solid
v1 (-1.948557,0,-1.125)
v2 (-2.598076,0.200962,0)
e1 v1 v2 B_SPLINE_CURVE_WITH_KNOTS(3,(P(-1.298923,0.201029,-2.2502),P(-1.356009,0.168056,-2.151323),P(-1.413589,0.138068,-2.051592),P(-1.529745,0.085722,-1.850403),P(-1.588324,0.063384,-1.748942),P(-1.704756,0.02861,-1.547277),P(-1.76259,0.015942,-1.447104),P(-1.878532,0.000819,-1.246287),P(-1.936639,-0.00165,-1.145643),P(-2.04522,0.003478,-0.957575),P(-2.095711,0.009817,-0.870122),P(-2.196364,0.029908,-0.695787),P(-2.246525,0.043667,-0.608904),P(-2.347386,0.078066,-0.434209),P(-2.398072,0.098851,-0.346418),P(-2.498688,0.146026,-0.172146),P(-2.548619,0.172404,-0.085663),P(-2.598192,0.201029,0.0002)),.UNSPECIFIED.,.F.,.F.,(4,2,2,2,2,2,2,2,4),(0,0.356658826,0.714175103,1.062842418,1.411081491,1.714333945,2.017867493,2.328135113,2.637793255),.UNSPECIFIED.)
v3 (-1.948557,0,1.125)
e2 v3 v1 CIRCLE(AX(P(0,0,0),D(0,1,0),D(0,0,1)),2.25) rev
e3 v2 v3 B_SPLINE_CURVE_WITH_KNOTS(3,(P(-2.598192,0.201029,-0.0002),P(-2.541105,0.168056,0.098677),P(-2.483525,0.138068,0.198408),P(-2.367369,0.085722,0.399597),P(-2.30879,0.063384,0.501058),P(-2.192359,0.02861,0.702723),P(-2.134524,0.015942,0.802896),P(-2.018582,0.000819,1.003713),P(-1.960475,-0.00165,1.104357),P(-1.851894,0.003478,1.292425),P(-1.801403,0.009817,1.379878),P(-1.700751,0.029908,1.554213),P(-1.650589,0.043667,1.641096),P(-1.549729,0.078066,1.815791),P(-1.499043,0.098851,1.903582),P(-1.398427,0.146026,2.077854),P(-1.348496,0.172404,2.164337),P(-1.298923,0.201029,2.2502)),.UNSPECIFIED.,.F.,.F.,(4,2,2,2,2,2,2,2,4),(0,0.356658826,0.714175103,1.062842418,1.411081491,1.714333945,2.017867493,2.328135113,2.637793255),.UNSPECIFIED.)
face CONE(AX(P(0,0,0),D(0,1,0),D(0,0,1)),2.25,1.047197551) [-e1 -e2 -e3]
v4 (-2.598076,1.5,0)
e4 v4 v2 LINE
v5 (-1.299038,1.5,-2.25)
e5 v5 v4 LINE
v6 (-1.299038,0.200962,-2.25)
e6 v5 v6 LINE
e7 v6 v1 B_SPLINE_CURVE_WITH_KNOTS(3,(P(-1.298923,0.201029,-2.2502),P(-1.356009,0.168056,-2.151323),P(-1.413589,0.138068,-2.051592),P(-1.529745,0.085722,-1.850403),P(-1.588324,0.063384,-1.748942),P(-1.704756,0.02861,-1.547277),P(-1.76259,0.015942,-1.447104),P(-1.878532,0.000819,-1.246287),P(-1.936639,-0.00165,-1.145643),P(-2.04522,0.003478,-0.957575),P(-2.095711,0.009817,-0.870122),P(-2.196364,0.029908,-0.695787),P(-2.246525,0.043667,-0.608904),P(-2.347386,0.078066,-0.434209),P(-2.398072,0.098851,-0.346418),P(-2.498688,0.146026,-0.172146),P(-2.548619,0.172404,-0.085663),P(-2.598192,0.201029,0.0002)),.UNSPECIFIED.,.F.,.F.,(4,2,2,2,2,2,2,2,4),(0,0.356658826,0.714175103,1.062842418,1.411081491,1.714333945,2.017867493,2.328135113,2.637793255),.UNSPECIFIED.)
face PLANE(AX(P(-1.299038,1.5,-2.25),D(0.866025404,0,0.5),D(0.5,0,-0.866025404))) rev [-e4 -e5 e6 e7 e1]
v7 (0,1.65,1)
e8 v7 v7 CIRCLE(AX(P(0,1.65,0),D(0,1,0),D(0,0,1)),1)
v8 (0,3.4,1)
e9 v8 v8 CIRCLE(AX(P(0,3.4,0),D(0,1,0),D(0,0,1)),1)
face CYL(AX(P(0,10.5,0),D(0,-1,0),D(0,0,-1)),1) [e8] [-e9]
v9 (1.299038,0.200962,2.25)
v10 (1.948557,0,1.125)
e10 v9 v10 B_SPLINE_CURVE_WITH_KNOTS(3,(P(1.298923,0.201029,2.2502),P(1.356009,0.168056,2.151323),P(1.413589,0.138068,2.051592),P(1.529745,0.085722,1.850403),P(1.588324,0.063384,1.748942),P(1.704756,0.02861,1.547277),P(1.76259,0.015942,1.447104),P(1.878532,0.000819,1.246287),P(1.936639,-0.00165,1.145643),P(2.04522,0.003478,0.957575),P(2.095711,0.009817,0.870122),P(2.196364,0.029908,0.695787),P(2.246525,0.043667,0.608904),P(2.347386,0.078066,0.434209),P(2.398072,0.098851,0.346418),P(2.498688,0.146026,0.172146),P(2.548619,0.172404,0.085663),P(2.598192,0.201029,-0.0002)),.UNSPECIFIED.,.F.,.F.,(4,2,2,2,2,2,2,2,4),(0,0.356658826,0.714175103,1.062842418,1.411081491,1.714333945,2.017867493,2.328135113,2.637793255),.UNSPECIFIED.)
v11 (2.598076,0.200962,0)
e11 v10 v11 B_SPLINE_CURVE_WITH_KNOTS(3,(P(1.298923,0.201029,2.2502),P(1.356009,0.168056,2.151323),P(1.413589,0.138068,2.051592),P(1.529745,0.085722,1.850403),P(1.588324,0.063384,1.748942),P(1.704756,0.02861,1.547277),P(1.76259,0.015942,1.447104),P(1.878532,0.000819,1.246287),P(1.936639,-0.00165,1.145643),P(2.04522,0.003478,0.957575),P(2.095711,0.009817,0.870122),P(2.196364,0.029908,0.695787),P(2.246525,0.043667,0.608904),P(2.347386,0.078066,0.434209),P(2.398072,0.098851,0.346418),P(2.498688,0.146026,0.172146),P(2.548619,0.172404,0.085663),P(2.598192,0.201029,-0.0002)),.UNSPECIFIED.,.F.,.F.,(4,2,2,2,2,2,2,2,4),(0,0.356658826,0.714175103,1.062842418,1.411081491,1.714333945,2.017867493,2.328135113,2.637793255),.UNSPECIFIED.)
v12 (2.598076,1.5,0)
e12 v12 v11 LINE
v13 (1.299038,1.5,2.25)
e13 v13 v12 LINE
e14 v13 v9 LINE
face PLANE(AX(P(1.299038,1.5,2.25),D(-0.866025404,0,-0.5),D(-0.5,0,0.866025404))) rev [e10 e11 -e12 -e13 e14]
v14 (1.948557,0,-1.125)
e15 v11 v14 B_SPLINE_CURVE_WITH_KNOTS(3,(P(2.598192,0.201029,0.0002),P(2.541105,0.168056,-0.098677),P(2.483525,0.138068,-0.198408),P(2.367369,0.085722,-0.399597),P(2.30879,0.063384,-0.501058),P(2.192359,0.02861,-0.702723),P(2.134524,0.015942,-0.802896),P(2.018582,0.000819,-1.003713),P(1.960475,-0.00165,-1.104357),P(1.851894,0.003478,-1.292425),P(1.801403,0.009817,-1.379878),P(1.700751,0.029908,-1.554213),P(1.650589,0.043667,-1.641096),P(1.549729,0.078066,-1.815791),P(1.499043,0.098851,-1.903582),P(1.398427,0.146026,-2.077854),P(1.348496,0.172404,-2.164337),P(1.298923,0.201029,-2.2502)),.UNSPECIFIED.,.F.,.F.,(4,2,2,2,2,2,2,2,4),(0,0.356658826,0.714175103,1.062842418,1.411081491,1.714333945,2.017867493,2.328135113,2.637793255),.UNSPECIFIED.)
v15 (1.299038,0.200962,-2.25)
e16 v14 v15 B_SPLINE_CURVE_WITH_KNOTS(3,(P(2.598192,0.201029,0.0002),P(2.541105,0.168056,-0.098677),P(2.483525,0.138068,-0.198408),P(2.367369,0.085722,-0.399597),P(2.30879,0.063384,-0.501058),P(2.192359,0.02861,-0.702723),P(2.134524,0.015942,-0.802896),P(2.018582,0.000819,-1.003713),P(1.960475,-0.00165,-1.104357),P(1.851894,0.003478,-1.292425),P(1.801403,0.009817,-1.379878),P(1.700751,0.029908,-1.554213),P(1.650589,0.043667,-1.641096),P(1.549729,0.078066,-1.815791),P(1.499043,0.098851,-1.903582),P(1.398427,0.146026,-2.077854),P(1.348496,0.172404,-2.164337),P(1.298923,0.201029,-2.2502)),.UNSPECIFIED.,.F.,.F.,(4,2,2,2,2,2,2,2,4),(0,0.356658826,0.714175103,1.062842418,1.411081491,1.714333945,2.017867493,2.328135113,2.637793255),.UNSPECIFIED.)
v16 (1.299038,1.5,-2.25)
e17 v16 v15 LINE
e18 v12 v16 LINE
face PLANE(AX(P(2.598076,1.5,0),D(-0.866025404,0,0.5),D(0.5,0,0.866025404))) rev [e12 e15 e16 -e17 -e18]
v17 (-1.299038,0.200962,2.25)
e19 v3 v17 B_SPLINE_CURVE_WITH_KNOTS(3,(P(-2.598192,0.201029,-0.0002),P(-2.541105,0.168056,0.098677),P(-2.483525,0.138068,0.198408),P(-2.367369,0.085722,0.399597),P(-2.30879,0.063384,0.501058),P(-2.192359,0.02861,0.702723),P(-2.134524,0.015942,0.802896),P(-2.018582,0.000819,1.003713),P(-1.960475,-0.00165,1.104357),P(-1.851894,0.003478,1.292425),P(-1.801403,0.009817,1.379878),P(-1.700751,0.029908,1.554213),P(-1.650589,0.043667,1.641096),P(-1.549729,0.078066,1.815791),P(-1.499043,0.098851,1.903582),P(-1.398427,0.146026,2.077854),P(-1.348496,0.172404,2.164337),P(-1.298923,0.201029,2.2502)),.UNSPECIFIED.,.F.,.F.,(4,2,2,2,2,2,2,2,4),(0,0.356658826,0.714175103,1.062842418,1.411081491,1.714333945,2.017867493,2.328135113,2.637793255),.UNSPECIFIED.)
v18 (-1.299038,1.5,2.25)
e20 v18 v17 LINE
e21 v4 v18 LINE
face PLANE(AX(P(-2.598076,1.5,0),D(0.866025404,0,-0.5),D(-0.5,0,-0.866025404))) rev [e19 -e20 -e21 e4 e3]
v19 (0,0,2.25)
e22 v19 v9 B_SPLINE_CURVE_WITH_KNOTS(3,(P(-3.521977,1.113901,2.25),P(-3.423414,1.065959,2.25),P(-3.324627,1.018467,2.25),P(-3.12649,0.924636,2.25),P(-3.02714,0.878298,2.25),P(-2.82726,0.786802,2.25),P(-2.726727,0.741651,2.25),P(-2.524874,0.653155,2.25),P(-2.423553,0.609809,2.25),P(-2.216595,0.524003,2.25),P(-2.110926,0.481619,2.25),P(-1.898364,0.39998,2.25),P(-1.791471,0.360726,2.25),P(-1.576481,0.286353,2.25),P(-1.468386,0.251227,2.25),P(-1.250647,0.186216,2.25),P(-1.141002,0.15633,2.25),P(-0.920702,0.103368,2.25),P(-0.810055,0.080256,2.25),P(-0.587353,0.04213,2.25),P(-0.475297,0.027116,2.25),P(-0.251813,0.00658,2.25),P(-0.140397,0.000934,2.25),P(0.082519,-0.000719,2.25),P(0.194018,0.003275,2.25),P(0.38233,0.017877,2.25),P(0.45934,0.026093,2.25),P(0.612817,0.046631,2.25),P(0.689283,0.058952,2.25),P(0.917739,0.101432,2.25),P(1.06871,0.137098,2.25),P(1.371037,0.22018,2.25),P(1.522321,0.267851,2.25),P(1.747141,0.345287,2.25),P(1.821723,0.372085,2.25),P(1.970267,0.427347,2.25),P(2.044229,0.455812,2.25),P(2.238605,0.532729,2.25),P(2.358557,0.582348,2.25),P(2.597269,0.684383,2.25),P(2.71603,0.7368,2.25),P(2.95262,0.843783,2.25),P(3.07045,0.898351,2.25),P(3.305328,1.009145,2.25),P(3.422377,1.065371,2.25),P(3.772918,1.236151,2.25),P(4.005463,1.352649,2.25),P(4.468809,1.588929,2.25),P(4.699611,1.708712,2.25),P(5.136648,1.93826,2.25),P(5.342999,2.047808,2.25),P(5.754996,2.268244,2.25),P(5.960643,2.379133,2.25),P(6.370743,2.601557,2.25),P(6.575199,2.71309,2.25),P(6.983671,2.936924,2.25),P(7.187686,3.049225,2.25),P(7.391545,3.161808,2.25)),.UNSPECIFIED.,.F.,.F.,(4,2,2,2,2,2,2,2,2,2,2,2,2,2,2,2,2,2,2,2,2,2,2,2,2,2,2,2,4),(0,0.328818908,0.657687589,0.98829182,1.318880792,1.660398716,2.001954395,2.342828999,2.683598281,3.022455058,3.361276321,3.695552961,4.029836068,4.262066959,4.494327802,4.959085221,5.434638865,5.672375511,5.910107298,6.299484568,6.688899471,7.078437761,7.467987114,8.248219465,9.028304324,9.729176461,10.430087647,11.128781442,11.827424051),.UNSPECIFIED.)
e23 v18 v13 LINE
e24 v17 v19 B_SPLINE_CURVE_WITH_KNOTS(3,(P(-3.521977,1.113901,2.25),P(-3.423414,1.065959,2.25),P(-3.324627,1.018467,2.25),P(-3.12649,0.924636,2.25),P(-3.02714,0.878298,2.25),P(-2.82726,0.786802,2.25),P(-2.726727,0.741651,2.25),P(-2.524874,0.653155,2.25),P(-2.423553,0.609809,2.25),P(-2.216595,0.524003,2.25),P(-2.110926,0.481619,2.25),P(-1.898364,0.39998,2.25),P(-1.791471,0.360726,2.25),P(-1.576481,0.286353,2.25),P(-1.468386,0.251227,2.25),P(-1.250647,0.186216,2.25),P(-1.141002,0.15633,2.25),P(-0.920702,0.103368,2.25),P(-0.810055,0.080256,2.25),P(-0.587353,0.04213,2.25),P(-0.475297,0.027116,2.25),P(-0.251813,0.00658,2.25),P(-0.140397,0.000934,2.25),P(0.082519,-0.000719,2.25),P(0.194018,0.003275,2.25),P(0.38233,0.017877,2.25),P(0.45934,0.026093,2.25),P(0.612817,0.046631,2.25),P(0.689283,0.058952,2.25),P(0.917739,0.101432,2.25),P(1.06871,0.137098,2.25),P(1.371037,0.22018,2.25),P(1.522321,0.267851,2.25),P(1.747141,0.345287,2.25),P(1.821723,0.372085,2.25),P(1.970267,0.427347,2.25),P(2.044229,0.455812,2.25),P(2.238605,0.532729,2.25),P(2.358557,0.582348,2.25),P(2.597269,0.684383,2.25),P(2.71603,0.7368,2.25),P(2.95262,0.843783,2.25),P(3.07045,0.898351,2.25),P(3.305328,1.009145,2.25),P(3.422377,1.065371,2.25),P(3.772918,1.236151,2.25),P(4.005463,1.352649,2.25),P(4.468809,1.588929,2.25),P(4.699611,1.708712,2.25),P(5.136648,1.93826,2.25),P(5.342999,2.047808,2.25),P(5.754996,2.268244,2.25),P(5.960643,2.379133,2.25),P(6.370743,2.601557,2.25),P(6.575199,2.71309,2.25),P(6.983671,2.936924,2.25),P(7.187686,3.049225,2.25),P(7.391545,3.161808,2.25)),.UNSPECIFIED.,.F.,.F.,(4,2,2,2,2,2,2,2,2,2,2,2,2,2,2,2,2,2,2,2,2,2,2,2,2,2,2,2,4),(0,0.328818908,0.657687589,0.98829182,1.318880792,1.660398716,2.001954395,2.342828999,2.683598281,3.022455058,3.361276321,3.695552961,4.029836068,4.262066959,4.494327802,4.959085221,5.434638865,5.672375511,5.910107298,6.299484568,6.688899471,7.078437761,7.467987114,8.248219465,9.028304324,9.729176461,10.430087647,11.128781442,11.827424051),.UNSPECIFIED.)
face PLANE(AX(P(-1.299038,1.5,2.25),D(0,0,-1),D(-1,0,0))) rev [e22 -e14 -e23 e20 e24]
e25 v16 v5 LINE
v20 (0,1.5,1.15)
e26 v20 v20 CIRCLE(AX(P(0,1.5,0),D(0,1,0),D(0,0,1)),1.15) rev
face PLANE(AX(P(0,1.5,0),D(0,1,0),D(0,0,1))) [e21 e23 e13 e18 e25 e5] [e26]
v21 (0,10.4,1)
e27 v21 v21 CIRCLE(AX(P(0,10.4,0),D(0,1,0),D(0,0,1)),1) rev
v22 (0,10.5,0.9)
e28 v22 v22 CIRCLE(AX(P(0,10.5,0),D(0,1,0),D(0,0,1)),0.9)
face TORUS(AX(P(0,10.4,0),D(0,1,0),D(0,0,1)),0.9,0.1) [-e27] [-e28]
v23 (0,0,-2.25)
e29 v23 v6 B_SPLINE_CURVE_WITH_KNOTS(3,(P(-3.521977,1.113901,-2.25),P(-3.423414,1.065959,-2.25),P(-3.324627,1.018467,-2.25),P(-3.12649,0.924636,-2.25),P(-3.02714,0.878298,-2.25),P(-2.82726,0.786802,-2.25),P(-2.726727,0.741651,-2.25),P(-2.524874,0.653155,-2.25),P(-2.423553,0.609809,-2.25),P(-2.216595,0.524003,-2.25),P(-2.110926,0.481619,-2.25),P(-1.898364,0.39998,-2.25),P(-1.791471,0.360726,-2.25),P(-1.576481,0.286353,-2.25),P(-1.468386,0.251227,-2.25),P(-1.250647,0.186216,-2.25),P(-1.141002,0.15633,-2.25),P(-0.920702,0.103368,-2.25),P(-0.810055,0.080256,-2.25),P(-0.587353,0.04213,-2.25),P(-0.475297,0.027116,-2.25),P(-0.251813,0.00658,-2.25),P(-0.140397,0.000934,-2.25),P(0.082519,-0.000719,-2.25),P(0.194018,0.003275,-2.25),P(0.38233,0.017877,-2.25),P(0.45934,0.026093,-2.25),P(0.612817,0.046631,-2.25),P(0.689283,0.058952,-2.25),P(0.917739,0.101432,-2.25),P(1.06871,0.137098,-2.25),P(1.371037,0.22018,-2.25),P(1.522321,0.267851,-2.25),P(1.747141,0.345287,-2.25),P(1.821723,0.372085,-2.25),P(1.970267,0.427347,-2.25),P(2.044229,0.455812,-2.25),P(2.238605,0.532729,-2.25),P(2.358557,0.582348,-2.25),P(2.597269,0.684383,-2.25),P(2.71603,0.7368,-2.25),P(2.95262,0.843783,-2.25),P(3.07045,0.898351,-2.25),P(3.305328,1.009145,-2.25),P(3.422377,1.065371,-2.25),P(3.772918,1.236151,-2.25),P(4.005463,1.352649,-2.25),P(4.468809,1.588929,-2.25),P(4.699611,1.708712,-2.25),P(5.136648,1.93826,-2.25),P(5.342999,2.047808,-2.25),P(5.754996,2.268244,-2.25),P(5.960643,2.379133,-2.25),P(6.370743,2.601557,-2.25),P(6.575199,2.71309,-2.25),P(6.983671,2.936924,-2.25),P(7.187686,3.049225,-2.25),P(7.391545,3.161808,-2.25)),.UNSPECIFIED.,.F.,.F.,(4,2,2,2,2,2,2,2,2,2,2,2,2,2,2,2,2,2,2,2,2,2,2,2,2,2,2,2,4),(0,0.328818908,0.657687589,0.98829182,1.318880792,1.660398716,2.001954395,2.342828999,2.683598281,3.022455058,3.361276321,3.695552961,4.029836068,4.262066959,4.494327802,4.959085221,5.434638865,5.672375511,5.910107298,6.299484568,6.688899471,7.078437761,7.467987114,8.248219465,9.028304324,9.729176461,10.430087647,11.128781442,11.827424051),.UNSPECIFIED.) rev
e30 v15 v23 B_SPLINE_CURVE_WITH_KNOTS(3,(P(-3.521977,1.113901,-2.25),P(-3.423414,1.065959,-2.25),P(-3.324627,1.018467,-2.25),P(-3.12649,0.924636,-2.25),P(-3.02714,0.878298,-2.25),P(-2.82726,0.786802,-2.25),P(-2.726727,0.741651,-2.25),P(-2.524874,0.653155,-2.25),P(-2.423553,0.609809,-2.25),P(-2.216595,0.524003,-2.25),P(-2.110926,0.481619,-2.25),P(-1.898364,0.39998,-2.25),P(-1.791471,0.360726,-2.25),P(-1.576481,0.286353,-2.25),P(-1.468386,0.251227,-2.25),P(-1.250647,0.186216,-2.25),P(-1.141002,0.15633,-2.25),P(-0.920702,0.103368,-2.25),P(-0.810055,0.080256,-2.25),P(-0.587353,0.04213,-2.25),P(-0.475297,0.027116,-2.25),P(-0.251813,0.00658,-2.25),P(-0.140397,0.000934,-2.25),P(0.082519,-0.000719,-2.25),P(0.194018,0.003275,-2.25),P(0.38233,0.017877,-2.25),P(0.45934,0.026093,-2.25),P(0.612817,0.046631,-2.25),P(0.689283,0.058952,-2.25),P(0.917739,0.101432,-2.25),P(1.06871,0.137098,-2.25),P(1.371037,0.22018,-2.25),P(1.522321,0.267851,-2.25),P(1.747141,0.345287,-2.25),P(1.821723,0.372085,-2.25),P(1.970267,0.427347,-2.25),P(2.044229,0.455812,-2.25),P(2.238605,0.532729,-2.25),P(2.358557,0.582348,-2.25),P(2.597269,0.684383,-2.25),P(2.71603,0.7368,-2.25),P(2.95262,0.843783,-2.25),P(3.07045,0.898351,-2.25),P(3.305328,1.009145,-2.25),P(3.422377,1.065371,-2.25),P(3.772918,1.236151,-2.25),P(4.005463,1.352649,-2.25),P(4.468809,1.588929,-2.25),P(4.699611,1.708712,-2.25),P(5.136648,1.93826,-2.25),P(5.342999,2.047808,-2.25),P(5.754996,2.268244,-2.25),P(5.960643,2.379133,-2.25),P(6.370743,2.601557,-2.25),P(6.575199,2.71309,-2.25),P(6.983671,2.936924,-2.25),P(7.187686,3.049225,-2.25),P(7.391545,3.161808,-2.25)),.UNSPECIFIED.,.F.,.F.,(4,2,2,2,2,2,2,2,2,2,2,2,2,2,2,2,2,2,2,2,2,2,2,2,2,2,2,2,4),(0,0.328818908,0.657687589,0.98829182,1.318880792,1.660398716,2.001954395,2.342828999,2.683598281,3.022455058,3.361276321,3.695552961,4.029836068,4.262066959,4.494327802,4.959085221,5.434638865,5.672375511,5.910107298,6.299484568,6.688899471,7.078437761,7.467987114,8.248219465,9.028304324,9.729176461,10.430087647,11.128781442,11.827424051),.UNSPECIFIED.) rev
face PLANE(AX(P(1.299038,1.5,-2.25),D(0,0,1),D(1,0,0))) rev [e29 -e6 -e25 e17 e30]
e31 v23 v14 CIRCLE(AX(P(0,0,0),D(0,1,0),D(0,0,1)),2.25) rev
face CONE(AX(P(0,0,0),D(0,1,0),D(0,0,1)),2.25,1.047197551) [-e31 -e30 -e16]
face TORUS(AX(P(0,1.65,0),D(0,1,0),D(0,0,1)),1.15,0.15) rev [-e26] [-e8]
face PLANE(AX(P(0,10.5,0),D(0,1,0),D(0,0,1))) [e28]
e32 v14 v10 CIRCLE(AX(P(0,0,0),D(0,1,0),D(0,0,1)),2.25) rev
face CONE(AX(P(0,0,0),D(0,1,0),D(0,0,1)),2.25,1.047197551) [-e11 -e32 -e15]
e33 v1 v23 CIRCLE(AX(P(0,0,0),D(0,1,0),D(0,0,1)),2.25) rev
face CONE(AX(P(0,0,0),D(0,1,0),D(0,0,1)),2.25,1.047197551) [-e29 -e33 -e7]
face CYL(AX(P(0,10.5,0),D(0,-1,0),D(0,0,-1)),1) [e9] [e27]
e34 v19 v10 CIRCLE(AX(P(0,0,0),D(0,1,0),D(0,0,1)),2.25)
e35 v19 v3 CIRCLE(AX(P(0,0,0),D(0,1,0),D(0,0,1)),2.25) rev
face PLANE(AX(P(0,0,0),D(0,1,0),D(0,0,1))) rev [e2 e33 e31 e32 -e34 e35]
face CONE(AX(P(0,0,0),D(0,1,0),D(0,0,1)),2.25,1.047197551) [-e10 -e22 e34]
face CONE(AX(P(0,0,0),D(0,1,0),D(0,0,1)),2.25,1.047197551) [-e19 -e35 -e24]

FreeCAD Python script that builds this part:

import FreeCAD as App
import Part
import Sketcher

V = App.Vector
Q = App.Units.Quantity


def edges_at(feature, points):
    """Names of the edges that pass closest to the given points."""
    edges = feature.Shape.Edges
    near = lambda p: min(range(len(edges)), key=lambda i: edges[i].distToShape(Part.Vertex(*p))[0])
    return sorted({f"Edge{near(p) + 1}" for p in points})

doc = App.newDocument("Part")
params = doc.addObject("Spreadsheet::Sheet", "Params")
for row, (alias, value) in enumerate([
    ("pad1_length", "1.5 mm"),
    ("sketch2_diameter", "4.5 mm"),
    ("sketch2_width", "13.8 mm"),
    ("pocket1_length", "1.5 mm"),
    ("pocket1_taper", "60 deg"),
    ("sketch3_diameter", "2 mm"),
    ("pad2_length", "9 mm"),
    ("fillet_radius", "0.1 mm"),
    ("fillet2_radius", "0.15 mm"),
], start=1):
    params.set(f"A{row}", alias)
    params.set(f"B{row}", "=" + value)
    params.setAlias(f"B{row}", alias)

body = doc.addObject("PartDesign::Body", "Body")

# Sketch on XZ plane
sketch1 = body.newObject("Sketcher::SketchObject", "Sketch")
sketch1.AttachmentSupport = (doc.getObject("XZ_Plane"), [""])
sketch1.MapMode = "FlatFace"
sketch1.addGeometry(Part.LineSegment(V(2.6, 0, 0), V(1.3, -2.2, 0)), False)
sketch1.addGeometry(Part.LineSegment(V(1.3, -2.2, 0), V(-1.3, -2.2, 0)), False)
sketch1.addGeometry(Part.LineSegment(V(-1.3, -2.2, 0), V(-2.6, 0, 0)), False)
sketch1.addGeometry(Part.LineSegment(V(-2.6, 0, 0), V(-1.3, 2.2, 0)), False)
sketch1.addGeometry(Part.LineSegment(V(-1.3, 2.2, 0), V(1.3, 2.2, 0)), False)
sketch1.addGeometry(Part.LineSegment(V(1.3, 2.2, 0), V(2.6, 0, 0)), False)
sketch1.addConstraint(Sketcher.Constraint("Coincident", 0, 2, 1, 1))
sketch1.addConstraint(Sketcher.Constraint("Coincident", 1, 2, 2, 1))
sketch1.addConstraint(Sketcher.Constraint("Coincident", 2, 2, 3, 1))
sketch1.addConstraint(Sketcher.Constraint("Coincident", 3, 2, 4, 1))
sketch1.addConstraint(Sketcher.Constraint("Coincident", 4, 2, 5, 1))
sketch1.addConstraint(Sketcher.Constraint("Coincident", 5, 2, 0, 1))
sketch1.addConstraint(Sketcher.Constraint("Horizontal", 1))
sketch1.addConstraint(Sketcher.Constraint("Horizontal", 4))
sketch1.addConstraint(Sketcher.Constraint("Symmetric", 0, 2, 3, 2, -1, 1))
sketch1.addConstraint(Sketcher.Constraint("Symmetric", 2, 2, 5, 2, -1, 1))
sketch1.addConstraint(Sketcher.Constraint("PointOnObject", 2, 2, -1))
sketch1.addConstraint(Sketcher.Constraint("Parallel", 2, 5))
sketch1.addConstraint(Sketcher.Constraint("Vertical", 1, 2, 3, 2))
sketch1.addConstraint(Sketcher.Constraint("Angle", 0, Q("-120 deg")))
sketch1.addConstraint(Sketcher.Constraint("DistanceY", 1, 2, 3, 2, Q("4.5 mm")))
sketch1.addConstraint(Sketcher.Constraint("DistanceX", 1, 2, 1, 1, Q("2.598076 mm")))
pad1 = body.newObject("PartDesign::Pad", "Pad")
pad1.Profile = sketch1
pad1.setExpression("Length", "Params.pad1_length")
pad1.Reversed = True

# Sketch on XZ plane
sketch2 = body.newObject("Sketcher::SketchObject", "Sketch001")
sketch2.AttachmentSupport = (doc.getObject("XZ_Plane"), [""])
sketch2.MapMode = "FlatFace"
sketch2.addGeometry(Part.LineSegment(V(-6.9, -6.6, 0), V(-6.9, 6.6, 0)), False)
sketch2.addGeometry(Part.LineSegment(V(-6.9, 6.6, 0), V(6.9, 6.6, 0)), False)
sketch2.addGeometry(Part.LineSegment(V(6.9, 6.6, 0), V(6.9, -6.6, 0)), False)
sketch2.addGeometry(Part.LineSegment(V(6.9, -6.6, 0), V(-6.9, -6.6, 0)), False)
sketch2.addGeometry(Part.Circle(V(0, 0, 0), V(0, 0, 1), 2.2), False)
sketch2.addConstraint(Sketcher.Constraint("Coincident", 0, 2, 1, 1))
sketch2.addConstraint(Sketcher.Constraint("Coincident", 1, 2, 2, 1))
sketch2.addConstraint(Sketcher.Constraint("Coincident", 2, 2, 3, 1))
sketch2.addConstraint(Sketcher.Constraint("Coincident", 3, 2, 0, 1))
sketch2.addConstraint(Sketcher.Constraint("Vertical", 0))
sketch2.addConstraint(Sketcher.Constraint("Horizontal", 1))
sketch2.addConstraint(Sketcher.Constraint("Vertical", 2))
sketch2.addConstraint(Sketcher.Constraint("Horizontal", 3))
sketch2.addConstraint(Sketcher.Constraint("Coincident", 4, 3, -1, 1))
sketch2.addConstraint(Sketcher.Constraint("Symmetric", 0, 2, 2, 2, -1, 1))
sketch2.addConstraint(Sketcher.Constraint("Diameter", 4, Q("4.5 mm")))
sketch2.addConstraint(Sketcher.Constraint("DistanceX", 1, 1, 1, 2, Q("13.8 mm")))
sketch2.addConstraint(Sketcher.Constraint("DistanceY", 0, 1, 0, 2, Q("13.104 mm")))
sketch2.setExpression("Constraints[10]", "Params.sketch2_diameter")
sketch2.setExpression("Constraints[11]", "Params.sketch2_width")
pocket1 = body.newObject("PartDesign::Pocket", "Pocket")
pocket1.Profile = sketch2
pocket1.setExpression("Length", "Params.pocket1_length")
pocket1.setExpression("TaperAngle", "Params.pocket1_taper")

# Sketch on XZ plane
sketch3 = body.newObject("Sketcher::SketchObject", "Sketch002")
sketch3.AttachmentSupport = (doc.getObject("XZ_Plane"), [""])
sketch3.MapMode = "FlatFace"
sketch3.AttachmentOffset = App.Placement(V(0, 0, -1.5), App.Rotation())
sketch3.addGeometry(Part.Circle(V(0, 0, 0), V(0, 0, 1), 1), False)
sketch3.addConstraint(Sketcher.Constraint("Coincident", 0, 3, -1, 1))
sketch3.addConstraint(Sketcher.Constraint("Diameter", 0, Q("2 mm")))
sketch3.setExpression("Constraints[1]", "Params.sketch3_diameter")
pad2 = body.newObject("PartDesign::Pad", "Pad001")
pad2.Profile = sketch3
pad2.setExpression("Length", "Params.pad2_length")
pad2.Reversed = True
doc.recompute()

fillet = body.newObject("PartDesign::Fillet", "Fillet")
fillet.Base = (pad2, edges_at(pad2, [(-1, 10.5, 0)]))
fillet.setExpression("Radius", "Params.fillet_radius")
doc.recompute()

fillet2 = body.newObject("PartDesign::Fillet", "Fillet001")
fillet2.Base = (fillet, edges_at(fillet, [(-1, 1.5, 0)]))
fillet2.setExpression("Radius", "Params.fillet2_radius")

doc.recompute()
